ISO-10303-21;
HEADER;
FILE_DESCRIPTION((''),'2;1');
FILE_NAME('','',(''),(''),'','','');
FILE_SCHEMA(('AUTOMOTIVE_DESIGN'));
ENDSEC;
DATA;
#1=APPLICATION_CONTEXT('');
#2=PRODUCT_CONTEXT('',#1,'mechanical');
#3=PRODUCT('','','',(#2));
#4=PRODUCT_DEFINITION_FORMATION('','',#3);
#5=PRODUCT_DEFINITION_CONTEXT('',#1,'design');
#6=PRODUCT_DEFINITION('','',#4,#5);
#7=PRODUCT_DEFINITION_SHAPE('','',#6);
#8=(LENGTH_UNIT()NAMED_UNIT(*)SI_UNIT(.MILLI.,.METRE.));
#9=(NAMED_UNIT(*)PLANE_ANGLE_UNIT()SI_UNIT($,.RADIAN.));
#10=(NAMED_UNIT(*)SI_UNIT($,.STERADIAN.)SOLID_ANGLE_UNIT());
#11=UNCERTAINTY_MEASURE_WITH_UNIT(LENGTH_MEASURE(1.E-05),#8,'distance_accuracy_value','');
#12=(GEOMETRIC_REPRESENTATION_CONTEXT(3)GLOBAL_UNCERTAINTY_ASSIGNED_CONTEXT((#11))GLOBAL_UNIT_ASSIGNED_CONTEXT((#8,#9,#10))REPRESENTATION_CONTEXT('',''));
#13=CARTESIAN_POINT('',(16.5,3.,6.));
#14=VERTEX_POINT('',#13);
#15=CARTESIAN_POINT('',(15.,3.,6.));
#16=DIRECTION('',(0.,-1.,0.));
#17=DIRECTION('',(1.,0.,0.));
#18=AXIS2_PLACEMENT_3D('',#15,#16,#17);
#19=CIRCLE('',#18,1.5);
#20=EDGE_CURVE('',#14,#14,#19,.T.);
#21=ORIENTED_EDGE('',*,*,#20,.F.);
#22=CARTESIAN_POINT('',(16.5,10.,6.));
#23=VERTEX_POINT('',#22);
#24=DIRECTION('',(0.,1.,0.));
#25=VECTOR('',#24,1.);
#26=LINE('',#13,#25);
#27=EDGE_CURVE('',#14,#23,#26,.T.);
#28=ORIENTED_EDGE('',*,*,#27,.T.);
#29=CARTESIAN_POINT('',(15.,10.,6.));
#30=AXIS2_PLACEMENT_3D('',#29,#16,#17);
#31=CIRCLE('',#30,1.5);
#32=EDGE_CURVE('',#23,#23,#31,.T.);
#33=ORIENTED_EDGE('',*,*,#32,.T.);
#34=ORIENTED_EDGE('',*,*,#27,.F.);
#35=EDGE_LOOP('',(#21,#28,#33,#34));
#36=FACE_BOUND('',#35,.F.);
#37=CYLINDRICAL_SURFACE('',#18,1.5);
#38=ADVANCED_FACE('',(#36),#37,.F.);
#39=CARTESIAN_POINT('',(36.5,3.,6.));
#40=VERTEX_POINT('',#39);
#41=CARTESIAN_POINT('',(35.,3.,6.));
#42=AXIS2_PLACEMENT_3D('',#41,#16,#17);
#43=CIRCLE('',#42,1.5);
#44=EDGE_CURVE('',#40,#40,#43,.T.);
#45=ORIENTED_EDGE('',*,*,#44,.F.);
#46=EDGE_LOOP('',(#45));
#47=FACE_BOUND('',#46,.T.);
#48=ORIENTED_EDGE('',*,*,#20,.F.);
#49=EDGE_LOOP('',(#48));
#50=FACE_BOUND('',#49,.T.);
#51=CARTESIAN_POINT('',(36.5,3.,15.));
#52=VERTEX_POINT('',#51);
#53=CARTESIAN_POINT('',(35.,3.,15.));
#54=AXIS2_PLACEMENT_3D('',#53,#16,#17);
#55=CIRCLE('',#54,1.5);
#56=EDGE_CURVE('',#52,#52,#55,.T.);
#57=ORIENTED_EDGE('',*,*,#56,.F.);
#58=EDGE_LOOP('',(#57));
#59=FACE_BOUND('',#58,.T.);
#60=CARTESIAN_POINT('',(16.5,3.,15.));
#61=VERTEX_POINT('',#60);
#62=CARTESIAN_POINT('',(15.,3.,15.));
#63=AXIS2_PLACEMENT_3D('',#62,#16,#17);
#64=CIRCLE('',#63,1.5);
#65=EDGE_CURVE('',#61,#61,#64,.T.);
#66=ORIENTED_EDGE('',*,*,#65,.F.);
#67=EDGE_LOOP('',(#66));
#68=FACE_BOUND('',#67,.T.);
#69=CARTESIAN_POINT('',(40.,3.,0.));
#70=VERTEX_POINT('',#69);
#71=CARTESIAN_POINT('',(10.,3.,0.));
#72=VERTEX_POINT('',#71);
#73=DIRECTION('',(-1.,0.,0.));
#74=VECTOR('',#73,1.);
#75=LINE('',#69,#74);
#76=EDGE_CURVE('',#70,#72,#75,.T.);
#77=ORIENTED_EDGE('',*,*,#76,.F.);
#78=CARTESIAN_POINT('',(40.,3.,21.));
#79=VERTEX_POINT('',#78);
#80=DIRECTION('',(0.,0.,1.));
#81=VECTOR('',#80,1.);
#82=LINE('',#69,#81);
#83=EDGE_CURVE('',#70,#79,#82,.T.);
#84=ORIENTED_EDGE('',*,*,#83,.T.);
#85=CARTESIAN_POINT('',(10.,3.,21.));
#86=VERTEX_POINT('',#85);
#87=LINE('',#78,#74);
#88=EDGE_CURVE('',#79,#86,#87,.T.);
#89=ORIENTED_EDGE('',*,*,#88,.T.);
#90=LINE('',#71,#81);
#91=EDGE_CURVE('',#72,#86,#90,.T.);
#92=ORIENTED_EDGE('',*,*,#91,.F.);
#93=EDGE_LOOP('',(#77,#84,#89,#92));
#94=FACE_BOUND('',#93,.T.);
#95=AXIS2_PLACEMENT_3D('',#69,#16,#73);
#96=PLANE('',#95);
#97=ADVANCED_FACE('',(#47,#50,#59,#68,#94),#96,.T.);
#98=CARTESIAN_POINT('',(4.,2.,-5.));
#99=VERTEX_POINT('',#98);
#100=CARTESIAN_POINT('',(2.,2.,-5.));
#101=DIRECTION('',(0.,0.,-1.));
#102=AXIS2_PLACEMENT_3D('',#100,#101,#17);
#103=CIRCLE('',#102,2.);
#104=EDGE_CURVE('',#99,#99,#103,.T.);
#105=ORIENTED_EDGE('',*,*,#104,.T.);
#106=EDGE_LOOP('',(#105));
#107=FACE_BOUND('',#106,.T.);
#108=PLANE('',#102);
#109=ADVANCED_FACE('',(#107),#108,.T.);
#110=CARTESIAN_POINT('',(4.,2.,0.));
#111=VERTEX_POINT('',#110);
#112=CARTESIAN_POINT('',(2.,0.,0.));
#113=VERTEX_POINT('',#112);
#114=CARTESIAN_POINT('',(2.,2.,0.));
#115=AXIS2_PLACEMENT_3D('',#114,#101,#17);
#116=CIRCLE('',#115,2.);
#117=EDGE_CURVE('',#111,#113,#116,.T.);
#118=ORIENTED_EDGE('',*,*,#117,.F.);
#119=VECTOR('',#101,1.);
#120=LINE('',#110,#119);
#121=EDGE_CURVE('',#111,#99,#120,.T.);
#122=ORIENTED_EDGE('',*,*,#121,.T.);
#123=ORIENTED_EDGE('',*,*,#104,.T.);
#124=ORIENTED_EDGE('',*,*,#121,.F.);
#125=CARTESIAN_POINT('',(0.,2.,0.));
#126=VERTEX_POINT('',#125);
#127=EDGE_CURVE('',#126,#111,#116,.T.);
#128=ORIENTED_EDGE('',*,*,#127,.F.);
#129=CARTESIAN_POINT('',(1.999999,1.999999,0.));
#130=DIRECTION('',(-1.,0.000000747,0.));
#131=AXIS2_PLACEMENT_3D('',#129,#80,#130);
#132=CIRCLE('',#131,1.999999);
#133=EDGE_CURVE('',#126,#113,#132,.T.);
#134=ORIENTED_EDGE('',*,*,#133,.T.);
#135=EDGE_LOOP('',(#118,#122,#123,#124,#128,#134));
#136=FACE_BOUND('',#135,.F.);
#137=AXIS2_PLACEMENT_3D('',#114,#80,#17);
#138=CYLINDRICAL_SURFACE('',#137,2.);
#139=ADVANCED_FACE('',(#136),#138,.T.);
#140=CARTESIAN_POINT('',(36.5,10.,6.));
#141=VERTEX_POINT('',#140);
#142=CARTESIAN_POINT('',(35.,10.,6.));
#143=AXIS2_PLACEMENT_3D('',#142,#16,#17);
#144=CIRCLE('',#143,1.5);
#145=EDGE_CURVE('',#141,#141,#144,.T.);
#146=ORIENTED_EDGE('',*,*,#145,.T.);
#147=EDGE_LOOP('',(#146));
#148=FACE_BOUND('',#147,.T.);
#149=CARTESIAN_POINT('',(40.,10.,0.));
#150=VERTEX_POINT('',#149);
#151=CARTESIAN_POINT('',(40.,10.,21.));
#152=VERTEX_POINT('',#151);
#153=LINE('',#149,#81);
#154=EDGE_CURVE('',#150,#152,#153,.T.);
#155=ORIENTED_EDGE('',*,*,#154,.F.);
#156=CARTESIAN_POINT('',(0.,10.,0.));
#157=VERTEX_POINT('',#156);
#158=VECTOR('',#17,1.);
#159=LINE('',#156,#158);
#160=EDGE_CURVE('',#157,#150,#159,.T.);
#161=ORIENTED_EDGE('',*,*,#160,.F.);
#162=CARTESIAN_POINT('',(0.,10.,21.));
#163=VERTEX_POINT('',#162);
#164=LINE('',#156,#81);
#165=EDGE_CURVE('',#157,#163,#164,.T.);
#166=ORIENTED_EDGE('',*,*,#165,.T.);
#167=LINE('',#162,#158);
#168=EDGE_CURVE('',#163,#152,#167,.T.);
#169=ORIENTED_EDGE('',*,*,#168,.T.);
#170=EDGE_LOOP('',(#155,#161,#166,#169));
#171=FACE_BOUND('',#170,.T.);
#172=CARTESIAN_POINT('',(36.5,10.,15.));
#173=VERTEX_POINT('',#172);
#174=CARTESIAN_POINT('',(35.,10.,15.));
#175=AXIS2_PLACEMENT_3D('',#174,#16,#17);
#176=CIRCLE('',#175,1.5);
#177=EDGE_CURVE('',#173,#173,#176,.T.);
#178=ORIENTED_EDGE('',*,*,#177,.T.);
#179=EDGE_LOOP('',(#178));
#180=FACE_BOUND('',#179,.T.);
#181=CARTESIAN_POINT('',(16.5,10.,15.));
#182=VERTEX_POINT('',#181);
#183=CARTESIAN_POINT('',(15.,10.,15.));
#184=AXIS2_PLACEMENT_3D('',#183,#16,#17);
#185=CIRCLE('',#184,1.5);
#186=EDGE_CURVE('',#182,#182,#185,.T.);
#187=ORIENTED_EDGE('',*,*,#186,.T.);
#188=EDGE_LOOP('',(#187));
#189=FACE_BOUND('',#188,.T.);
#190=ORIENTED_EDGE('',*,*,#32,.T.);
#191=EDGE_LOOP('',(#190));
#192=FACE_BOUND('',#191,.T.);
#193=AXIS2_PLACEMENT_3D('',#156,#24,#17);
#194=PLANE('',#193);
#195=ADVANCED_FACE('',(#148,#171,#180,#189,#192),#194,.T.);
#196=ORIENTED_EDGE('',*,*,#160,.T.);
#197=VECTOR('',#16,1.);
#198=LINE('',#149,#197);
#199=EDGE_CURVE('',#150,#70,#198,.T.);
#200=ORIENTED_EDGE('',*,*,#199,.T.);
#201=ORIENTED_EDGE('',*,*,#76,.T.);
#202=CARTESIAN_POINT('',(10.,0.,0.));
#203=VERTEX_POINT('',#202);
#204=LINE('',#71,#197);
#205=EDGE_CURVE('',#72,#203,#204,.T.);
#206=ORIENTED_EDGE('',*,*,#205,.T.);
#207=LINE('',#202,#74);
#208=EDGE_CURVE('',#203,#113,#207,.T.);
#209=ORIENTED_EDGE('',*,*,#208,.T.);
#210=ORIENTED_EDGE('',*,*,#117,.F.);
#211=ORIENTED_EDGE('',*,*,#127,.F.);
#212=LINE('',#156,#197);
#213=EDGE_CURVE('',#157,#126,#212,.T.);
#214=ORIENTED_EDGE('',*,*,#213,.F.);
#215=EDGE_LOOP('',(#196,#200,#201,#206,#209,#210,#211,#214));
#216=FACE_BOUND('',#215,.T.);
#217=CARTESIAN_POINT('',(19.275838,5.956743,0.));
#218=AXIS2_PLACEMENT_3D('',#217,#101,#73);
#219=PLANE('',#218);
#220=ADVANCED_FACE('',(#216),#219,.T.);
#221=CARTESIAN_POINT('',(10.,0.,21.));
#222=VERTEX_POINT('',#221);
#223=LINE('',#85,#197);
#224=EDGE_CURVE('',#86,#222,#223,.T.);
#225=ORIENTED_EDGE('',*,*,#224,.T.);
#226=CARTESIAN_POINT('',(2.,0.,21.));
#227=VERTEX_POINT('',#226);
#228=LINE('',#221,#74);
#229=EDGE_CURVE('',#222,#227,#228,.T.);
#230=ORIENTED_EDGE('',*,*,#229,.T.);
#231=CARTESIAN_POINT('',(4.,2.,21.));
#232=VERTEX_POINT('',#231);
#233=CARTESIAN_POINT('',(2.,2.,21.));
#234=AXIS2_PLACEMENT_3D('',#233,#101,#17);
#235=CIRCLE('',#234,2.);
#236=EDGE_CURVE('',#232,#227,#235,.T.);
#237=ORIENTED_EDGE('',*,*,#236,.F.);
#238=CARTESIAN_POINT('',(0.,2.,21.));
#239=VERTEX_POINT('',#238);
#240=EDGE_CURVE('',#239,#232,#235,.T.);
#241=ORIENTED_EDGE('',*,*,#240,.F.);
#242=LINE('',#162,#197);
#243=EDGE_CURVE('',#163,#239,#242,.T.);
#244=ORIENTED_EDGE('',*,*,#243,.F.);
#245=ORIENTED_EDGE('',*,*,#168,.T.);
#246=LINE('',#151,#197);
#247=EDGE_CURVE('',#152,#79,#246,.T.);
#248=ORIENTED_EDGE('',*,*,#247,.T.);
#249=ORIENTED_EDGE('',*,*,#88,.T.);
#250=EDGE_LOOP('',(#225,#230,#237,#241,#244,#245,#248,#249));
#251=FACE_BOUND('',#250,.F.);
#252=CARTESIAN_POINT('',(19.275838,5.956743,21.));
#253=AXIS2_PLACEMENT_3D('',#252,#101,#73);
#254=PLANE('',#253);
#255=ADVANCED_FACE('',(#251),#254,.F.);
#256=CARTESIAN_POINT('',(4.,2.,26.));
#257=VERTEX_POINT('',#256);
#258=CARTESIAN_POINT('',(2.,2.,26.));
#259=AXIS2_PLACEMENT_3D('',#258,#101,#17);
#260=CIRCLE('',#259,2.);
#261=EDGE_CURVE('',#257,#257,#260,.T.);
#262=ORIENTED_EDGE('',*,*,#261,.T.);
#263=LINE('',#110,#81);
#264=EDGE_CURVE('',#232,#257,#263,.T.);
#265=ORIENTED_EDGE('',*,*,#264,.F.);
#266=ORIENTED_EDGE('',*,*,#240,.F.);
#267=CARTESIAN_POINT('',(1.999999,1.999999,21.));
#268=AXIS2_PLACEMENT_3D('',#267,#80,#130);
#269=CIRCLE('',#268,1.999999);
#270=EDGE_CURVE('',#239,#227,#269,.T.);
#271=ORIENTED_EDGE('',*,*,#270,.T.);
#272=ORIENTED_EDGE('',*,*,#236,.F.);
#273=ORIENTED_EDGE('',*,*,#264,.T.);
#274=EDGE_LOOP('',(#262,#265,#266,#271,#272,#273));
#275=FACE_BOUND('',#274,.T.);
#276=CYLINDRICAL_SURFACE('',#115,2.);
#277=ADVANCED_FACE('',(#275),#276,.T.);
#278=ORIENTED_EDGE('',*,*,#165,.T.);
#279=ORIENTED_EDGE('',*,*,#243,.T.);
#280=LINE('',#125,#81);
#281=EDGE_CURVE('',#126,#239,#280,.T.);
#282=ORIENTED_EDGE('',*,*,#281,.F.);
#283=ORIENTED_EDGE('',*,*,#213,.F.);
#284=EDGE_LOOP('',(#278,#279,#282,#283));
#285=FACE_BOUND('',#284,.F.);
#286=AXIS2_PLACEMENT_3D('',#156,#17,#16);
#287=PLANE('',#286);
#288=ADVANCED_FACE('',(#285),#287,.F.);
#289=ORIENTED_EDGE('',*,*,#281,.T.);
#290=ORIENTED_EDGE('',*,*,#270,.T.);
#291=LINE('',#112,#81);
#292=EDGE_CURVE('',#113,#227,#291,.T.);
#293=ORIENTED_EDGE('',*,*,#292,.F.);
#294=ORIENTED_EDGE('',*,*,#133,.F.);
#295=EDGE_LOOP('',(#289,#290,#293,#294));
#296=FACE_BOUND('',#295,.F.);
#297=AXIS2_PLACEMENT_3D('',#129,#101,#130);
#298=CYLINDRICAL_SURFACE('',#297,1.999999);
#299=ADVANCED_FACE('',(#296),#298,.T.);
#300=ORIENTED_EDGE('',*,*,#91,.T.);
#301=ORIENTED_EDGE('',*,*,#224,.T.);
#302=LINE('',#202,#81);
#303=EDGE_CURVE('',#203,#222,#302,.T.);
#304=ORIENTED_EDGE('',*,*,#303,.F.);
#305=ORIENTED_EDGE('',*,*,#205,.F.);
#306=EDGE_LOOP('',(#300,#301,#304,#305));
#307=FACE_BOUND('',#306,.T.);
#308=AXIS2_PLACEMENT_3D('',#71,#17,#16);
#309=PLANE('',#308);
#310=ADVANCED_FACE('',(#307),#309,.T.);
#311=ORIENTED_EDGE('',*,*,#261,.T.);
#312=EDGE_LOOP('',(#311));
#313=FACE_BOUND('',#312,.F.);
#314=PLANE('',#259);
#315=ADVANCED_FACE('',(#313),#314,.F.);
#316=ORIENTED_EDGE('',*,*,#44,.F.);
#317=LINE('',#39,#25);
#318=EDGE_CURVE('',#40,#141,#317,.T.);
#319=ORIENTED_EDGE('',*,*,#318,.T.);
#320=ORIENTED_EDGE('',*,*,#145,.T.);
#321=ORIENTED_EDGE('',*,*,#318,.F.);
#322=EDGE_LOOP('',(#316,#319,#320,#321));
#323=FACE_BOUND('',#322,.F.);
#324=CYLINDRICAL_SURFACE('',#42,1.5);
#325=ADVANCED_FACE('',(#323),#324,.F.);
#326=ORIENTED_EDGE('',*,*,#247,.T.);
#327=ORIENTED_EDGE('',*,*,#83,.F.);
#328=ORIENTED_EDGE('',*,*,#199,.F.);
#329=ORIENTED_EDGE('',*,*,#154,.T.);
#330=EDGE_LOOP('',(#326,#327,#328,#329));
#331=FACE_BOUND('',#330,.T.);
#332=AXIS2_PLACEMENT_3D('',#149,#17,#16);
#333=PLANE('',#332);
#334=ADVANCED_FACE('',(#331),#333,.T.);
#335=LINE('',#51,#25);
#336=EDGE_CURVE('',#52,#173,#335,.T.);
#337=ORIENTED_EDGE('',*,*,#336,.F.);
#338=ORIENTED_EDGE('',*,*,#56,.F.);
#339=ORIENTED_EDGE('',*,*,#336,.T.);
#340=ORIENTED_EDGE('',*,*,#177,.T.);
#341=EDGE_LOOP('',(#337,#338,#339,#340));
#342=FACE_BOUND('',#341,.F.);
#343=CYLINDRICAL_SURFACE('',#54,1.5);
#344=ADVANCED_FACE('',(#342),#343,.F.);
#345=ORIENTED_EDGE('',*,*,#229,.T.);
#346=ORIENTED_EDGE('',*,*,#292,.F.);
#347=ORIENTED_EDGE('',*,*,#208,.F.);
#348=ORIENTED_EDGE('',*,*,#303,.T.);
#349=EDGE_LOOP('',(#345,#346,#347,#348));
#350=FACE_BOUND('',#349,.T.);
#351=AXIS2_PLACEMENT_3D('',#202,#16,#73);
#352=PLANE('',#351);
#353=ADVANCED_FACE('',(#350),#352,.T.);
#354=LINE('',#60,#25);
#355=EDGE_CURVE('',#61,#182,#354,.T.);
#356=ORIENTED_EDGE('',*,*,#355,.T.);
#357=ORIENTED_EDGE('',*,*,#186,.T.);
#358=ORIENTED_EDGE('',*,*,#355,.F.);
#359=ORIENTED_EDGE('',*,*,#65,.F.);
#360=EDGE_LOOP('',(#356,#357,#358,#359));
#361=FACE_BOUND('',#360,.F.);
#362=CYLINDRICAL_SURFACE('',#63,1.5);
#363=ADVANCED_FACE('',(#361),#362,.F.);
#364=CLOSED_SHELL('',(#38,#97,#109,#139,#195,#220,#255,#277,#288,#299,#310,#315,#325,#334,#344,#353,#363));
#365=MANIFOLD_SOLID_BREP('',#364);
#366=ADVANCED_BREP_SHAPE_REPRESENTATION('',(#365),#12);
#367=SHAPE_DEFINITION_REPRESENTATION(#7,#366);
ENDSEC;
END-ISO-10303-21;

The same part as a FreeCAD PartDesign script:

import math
import FreeCAD as App
import Part
import Sketcher
from FreeCAD import Vector

doc = App.newDocument("Part")
params = doc.addObject("Spreadsheet::Sheet", "Params")
for row, (alias, value) in enumerate([
    ("sketch1_radius", "1.999999 mm"),
    ("sketch1_width", "40 mm"),
    ("sketch1_width2", "8 mm"),
    ("sketch1_height", "3 mm"),
    ("pad1_length", "21 mm"),
    ("sketch2_diameter", "4 mm"),
    ("pad2_length", "5 mm"),
    ("pad2_length2", "26 mm"),
    ("sketch3_diameter", "3 mm"),
], start=1):
    params.set(f"A{row}", alias)
    params.set(f"B{row}", "=" + value)
    params.setAlias(f"B{row}", alias)

body = doc.addObject("PartDesign::Body", "Body")

# Sketch on XY plane
sketch1 = body.newObject("Sketcher::SketchObject", "Sketch")
sketch1.AttachmentSupport = (doc.getObject("XY_Plane"), [""])
sketch1.MapMode = "FlatFace"
sketch1.addGeometry([
    Part.LineSegment(Vector(40, 10, 0), Vector(0, 10, 0)),  # 0
    Part.LineSegment(Vector(0, 10, 0), Vector(0, 2, 0)),  # 1
    Part.ArcOfCircle(Part.Circle(Vector(2, 2, 0), Vector(0, 0, 1), 2), math.radians(180), math.radians(270)),  # 2
    Part.LineSegment(Vector(2, 0, 0), Vector(10, 0, 0)),  # 3
    Part.LineSegment(Vector(10, 0, 0), Vector(10, 3, 0)),  # 4
    Part.LineSegment(Vector(10, 3, 0), Vector(40, 3, 0)),  # 5
    Part.LineSegment(Vector(40, 3, 0), Vector(40, 10, 0)),  # 6
], False)
sketch1.addConstraint([
    Sketcher.Constraint("Coincident", 0, 2, 1, 1),
    Sketcher.Constraint("Tangent", 1, 2, 2, 1),
    Sketcher.Constraint("Tangent", 2, 2, 3, 1),
    Sketcher.Constraint("Coincident", 3, 2, 4, 1),
    Sketcher.Constraint("Coincident", 4, 2, 5, 1),
    Sketcher.Constraint("Coincident", 5, 2, 6, 1),
    Sketcher.Constraint("Coincident", 6, 2, 0, 1),
    Sketcher.Constraint("Horizontal", 0),
    Sketcher.Constraint("Vertical", 1),
    Sketcher.Constraint("Horizontal", 3),
    Sketcher.Constraint("Vertical", 4),
    Sketcher.Constraint("Horizontal", 5),
    Sketcher.Constraint("Vertical", 6),
    Sketcher.Constraint("PointOnObject", 0, 2, -2),
    Sketcher.Constraint("PointOnObject", 2, 2, -1),
    Sketcher.Constraint("Equal", 3, 1),
    Sketcher.Constraint("Radius", 2, 1.999999),
    Sketcher.Constraint("DistanceX", 0, 2, 0, 1, 40.0),
    Sketcher.Constraint("DistanceX", 3, 1, 3, 2, 8.0),
    Sketcher.Constraint("DistanceY", 4, 1, 4, 2, 3.0),
])
sketch1.setExpression("Constraints[16]", "Params.sketch1_radius")
sketch1.setExpression("Constraints[17]", "Params.sketch1_width")
sketch1.setExpression("Constraints[18]", "Params.sketch1_width2")
sketch1.setExpression("Constraints[19]", "Params.sketch1_height")
pad1 = body.newObject("PartDesign::Pad", "Pad")
pad1.Profile = sketch1
pad1.setExpression("Length", "Params.pad1_length")

# Sketch on XY plane
sketch2 = body.newObject("Sketcher::SketchObject", "Sketch001")
sketch2.AttachmentSupport = (doc.getObject("XY_Plane"), [""])
sketch2.MapMode = "FlatFace"
sketch2.addGeometry(Part.Circle(Vector(2, 2, 0), Vector(0, 0, 1), 2), False)
sketch2.addConstraint([
    Sketcher.Constraint("Diameter", 0, 4.0),
    Sketcher.Constraint("DistanceX", -1, 1, 0, 3, 2.0),
    Sketcher.Constraint("DistanceY", -1, 1, 0, 3, 2.0),
])
sketch2.setExpression("Constraints[0]", "Params.sketch2_diameter")
pad2 = body.newObject("PartDesign::Pad", "Pad001")
pad2.Profile = sketch2
pad2.Type = "TwoLengths"
pad2.setExpression("Length", "Params.pad2_length")
pad2.setExpression("Length2", "Params.pad2_length2")
pad2.Reversed = True

# Sketch on XZ plane
sketch3 = body.newObject("Sketcher::SketchObject", "Sketch002")
sketch3.AttachmentSupport = (doc.getObject("XZ_Plane"), [""])
sketch3.MapMode = "FlatFace"
sketch3.AttachmentOffset = App.Placement(Vector(0, 0, -3), App.Rotation())
sketch3.addGeometry([
    Part.Circle(Vector(15, 15, 0), Vector(0, 0, 1), 1.5),
    Part.Circle(Vector(35, 15, 0), Vector(0, 0, 1), 1.5),
    Part.Circle(Vector(15, 6, 0), Vector(0, 0, 1), 1.5),
    Part.Circle(Vector(35, 6, 0), Vector(0, 0, 1), 1.5),
], False)
sketch3.addConstraint([
    Sketcher.Constraint("Equal", 0, 1),
    Sketcher.Constraint("Equal", 1, 2),
    Sketcher.Constraint("Equal", 2, 3),
    Sketcher.Constraint("Horizontal", 0, 3, 1, 3),
    Sketcher.Constraint("Horizontal", 2, 3, 3, 3),
    Sketcher.Constraint("Vertical", 0, 3, 2, 3),
    Sketcher.Constraint("Vertical", 1, 3, 3, 3),
    Sketcher.Constraint("Diameter", 0, 3.0),
    Sketcher.Constraint("DistanceX", -1, 1, 0, 3, 15.0),
    Sketcher.Constraint("DistanceY", -1, 1, 0, 3, 15.0),
    Sketcher.Constraint("DistanceX", -1, 1, 1, 3, 35.0),
    Sketcher.Constraint("DistanceY", -1, 1, 2, 3, 6.0),
])
sketch3.setExpression("Constraints[7]", "Params.sketch3_diameter")
pocket1 = body.newObject("PartDesign::Pocket", "Pocket")
pocket1.Profile = sketch3
pocket1.Type = "ThroughAll"

doc.recompute()
